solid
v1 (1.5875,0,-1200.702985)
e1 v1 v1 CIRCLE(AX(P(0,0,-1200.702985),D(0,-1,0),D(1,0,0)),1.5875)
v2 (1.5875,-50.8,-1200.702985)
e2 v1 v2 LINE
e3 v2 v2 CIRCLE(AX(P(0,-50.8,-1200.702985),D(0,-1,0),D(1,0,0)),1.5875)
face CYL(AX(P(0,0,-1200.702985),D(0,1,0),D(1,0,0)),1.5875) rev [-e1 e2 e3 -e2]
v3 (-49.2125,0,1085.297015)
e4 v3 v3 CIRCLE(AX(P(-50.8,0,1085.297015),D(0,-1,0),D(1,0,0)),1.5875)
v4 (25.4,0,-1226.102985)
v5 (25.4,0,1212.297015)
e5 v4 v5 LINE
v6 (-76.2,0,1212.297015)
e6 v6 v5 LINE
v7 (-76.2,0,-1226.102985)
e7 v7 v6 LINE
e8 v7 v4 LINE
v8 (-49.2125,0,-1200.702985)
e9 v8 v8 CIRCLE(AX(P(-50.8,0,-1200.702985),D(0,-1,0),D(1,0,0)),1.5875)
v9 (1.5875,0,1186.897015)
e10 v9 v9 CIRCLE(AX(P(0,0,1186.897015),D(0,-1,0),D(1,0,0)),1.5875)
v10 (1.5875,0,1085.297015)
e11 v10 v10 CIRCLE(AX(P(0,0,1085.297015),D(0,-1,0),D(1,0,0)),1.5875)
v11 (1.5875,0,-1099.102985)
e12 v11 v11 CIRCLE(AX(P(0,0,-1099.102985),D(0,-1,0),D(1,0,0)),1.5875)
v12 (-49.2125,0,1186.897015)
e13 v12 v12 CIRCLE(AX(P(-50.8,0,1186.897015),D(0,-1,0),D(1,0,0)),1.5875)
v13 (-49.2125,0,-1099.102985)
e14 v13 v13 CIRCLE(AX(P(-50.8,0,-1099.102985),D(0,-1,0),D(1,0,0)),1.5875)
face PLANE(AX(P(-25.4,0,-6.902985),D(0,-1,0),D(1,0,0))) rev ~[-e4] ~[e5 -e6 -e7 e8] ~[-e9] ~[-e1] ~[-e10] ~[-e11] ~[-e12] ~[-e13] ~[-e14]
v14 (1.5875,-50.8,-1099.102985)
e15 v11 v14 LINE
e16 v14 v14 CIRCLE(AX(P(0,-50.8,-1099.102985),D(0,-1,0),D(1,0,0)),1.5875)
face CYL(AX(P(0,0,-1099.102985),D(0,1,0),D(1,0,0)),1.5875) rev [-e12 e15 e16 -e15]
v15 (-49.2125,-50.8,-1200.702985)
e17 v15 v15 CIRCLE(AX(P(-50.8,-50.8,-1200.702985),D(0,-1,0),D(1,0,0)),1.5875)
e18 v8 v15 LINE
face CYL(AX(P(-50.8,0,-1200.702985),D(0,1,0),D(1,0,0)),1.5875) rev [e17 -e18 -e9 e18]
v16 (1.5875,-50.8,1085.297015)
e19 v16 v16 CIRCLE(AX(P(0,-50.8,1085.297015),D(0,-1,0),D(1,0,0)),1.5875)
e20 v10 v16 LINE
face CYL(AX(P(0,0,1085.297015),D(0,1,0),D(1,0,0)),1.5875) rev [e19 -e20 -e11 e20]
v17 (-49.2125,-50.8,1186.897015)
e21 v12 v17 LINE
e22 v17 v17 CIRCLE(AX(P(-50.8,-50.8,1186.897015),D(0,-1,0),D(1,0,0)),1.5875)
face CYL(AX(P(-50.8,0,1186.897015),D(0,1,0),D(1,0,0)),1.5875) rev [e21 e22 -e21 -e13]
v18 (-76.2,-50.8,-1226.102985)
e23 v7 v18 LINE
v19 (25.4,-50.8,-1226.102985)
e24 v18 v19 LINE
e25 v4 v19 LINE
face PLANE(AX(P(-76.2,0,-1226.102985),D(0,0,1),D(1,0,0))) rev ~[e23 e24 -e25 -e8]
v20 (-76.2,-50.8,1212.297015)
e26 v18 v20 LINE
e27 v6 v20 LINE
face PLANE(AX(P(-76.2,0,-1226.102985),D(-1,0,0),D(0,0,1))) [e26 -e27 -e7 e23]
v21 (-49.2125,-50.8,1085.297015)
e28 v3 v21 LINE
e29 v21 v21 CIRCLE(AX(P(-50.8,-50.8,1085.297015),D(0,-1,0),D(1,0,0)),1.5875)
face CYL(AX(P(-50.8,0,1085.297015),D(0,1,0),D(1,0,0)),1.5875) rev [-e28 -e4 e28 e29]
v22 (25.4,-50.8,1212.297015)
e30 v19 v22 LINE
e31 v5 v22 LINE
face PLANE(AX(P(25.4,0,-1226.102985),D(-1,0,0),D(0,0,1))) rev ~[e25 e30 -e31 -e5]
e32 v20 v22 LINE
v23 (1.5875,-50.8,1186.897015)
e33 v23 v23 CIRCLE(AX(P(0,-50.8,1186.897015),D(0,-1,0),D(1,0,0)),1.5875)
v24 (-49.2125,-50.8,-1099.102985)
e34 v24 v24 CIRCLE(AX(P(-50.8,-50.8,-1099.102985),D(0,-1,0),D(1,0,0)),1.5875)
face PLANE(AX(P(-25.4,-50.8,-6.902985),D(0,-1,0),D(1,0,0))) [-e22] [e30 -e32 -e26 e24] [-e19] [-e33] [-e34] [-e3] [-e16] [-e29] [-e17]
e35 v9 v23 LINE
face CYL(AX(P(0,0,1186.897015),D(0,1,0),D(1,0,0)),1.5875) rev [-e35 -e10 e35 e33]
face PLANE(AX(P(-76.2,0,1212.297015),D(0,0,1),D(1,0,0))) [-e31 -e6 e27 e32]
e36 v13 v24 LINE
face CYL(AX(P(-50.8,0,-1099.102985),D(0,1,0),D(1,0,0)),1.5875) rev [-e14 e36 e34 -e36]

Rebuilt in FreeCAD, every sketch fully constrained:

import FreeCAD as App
import Part
import Sketcher
from FreeCAD import Vector
Q = App.Units.Quantity

doc = App.newDocument("Part")
body = doc.addObject("PartDesign::Body", "Body")

sketch1 = body.newObject("Sketcher::SketchObject", "Sketch")
sketch1.AttachmentSupport = (doc.getObject("XZ_Plane"), [""])
sketch1.MapMode = "FlatFace"
sketch1.addGeometry(Part.LineSegment(Vector(-76.2, 1212.297015, 0), Vector(-76.2, -1226.102985, 0)), False)
sketch1.addGeometry(Part.LineSegment(Vector(-76.2, -1226.102985, 0), Vector(25.4, -1226.102985, 0)), False)
sketch1.addGeometry(Part.LineSegment(Vector(25.4, -1226.102985, 0), Vector(25.4, 1212.297015, 0)), False)
sketch1.addGeometry(Part.LineSegment(Vector(25.4, 1212.297015, 0), Vector(-76.2, 1212.297015, 0)), False)
sketch1.addGeometry(Part.Circle(Vector(-50.8, -1200.702985, 0), Vector(0, 0, 1), 1.5875), False)
sketch1.addGeometry(Part.Circle(Vector(-50.8, -1099.102985, 0), Vector(0, 0, 1), 1.5875), False)
sketch1.addGeometry(Part.Circle(Vector(0, -1200.702985, 0), Vector(0, 0, 1), 1.5875), False)
sketch1.addGeometry(Part.Circle(Vector(0, -1099.102985, 0), Vector(0, 0, 1), 1.5875), False)
sketch1.addGeometry(Part.Circle(Vector(-50.8, 1085.297015, 0), Vector(0, 0, 1), 1.5875), False)
sketch1.addGeometry(Part.Circle(Vector(-50.8, 1186.897015, 0), Vector(0, 0, 1), 1.5875), False)
sketch1.addGeometry(Part.Circle(Vector(0, 1085.297015, 0), Vector(0, 0, 1), 1.5875), False)
sketch1.addGeometry(Part.Circle(Vector(0, 1186.897015, 0), Vector(0, 0, 1), 1.5875), False)
sketch1.addConstraint(Sketcher.Constraint("Coincident", 0, 2, 1, 1))
sketch1.addConstraint(Sketcher.Constraint("Coincident", 1, 2, 2, 1))
sketch1.addConstraint(Sketcher.Constraint("Coincident", 2, 2, 3, 1))
sketch1.addConstraint(Sketcher.Constraint("Coincident", 3, 2, 0, 1))
sketch1.addConstraint(Sketcher.Constraint("Vertical", 0))
sketch1.addConstraint(Sketcher.Constraint("Horizontal", 1))
sketch1.addConstraint(Sketcher.Constraint("Vertical", 2))
sketch1.addConstraint(Sketcher.Constraint("Horizontal", 3))
sketch1.addConstraint(Sketcher.Constraint("Equal", 4, 5))
sketch1.addConstraint(Sketcher.Constraint("Equal", 5, 6))
sketch1.addConstraint(Sketcher.Constraint("Equal", 6, 7))
sketch1.addConstraint(Sketcher.Constraint("Equal", 7, 8))
sketch1.addConstraint(Sketcher.Constraint("Equal", 8, 9))
sketch1.addConstraint(Sketcher.Constraint("Equal", 9, 10))
sketch1.addConstraint(Sketcher.Constraint("Equal", 10, 11))
sketch1.addConstraint(Sketcher.Constraint("PointOnObject", 6, 3, -2))
sketch1.addConstraint(Sketcher.Constraint("PointOnObject", 7, 3, -2))
sketch1.addConstraint(Sketcher.Constraint("PointOnObject", 10, 3, -2))
sketch1.addConstraint(Sketcher.Constraint("PointOnObject", 11, 3, -2))
sketch1.addConstraint(Sketcher.Constraint("Horizontal", 4, 3, 6, 3))
sketch1.addConstraint(Sketcher.Constraint("Horizontal", 5, 3, 7, 3))
sketch1.addConstraint(Sketcher.Constraint("Horizontal", 8, 3, 10, 3))
sketch1.addConstraint(Sketcher.Constraint("Horizontal", 9, 3, 11, 3))
sketch1.addConstraint(Sketcher.Constraint("Vertical", 4, 3, 5, 3))
sketch1.addConstraint(Sketcher.Constraint("Vertical", 5, 3, 8, 3))
sketch1.addConstraint(Sketcher.Constraint("Vertical", 8, 3, 9, 3))
sketch1.addConstraint(Sketcher.Constraint("DistanceX", 1, 1, 1, 2, Q("4 in")))
sketch1.addConstraint(Sketcher.Constraint("DistanceY", 0, 2, 0, 1, Q("96 in")))
sketch1.addConstraint(Sketcher.Constraint("Diameter", 4, Q("0.125 in")))
sketch1.addConstraint(Sketcher.Constraint("DistanceX", 4, 3, -1, 1, Q("2 in")))
sketch1.addConstraint(Sketcher.Constraint("DistanceX", 0, 2, -1, 1, Q("3 in")))
sketch1.addConstraint(Sketcher.Constraint("DistanceY", 4, 3, 5, 3, Q("4 in")))
sketch1.addConstraint(Sketcher.Constraint("DistanceY", 5, 3, 8, 3, Q("86 in")))
sketch1.addConstraint(Sketcher.Constraint("DistanceY", 8, 3, 9, 3, Q("4 in")))
sketch1.addConstraint(Sketcher.Constraint("DistanceY", 0, 2, 4, 3, Q("1 in")))
sketch1.addConstraint(Sketcher.Constraint("DistanceY", 4, 3, -1, 1, 1200.702985))
pad1 = body.newObject("PartDesign::Pad", "Pad")
pad1.Profile = sketch1
pad1.Length = Q("2 in")

doc.recompute()
